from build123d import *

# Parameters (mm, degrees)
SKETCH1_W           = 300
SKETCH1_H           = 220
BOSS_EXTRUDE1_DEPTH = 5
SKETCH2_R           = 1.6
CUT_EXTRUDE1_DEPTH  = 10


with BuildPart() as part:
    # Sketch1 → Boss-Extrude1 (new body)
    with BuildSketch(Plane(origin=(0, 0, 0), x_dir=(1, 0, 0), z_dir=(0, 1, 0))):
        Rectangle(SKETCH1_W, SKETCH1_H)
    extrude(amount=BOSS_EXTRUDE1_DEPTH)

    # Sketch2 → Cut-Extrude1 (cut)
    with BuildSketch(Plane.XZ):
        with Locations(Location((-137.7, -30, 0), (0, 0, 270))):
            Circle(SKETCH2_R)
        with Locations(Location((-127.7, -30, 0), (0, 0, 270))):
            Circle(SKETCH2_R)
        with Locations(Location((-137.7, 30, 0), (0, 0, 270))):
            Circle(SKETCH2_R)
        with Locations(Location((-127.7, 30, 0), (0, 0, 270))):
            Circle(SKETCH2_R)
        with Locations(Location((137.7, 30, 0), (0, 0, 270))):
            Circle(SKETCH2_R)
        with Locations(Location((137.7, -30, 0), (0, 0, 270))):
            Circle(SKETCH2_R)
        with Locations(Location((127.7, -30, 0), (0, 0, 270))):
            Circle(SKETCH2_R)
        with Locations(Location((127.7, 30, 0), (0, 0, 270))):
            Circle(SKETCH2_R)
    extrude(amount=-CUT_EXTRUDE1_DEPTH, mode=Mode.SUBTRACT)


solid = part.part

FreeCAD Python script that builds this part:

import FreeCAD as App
import Part
import Sketcher

doc = App.newDocument("Part")
body = doc.addObject("PartDesign::Body", "Body")

sketch1 = body.newObject("Sketcher::SketchObject", "Sketch")
sketch1.AttachmentSupport = (doc.getObject("XZ_Plane"), [""])
sketch1.MapMode = "FlatFace"
sketch1.addGeometry([
    Part.LineSegment(App.Vector(-150, -110, 0), App.Vector(-150, 110, 0)),
    Part.LineSegment(App.Vector(-150, 110, 0), App.Vector(150, 110, 0)),
    Part.LineSegment(App.Vector(150, 110, 0), App.Vector(150, -110, 0)),
    Part.LineSegment(App.Vector(150, -110, 0), App.Vector(-150, -110, 0)),
], False)
sketch1.addConstraint([
    Sketcher.Constraint("Coincident", 0, 2, 1, 1),
    Sketcher.Constraint("Coincident", 1, 2, 2, 1),
    Sketcher.Constraint("Coincident", 2, 2, 3, 1),
    Sketcher.Constraint("Coincident", 3, 2, 0, 1),
    Sketcher.Constraint("Vertical", 0),
    Sketcher.Constraint("Horizontal", 1),
    Sketcher.Constraint("Vertical", 2),
    Sketcher.Constraint("Horizontal", 3),
    Sketcher.Constraint("Symmetric", 0, 2, 2, 2, -1, 1),
    Sketcher.Constraint("DistanceX", 1, 1, 1, 2, 300.0),
    Sketcher.Constraint("DistanceY", 0, 1, 0, 2, 220.0),
])
pad1 = body.newObject("PartDesign::Pad", "Pad")
pad1.Profile = sketch1
pad1.Length = 5
pad1.Reversed = True

sketch2 = body.newObject("Sketcher::SketchObject", "Sketch001")
sketch2.AttachmentSupport = (doc.getObject("XZ_Plane"), [""])
sketch2.MapMode = "FlatFace"
sketch2.addGeometry([
    Part.Circle(App.Vector(-137.7, -30, 0), App.Vector(0, 0, 1), 1.6),
    Part.Circle(App.Vector(-127.7, -30, 0), App.Vector(0, 0, 1), 1.6),
    Part.Circle(App.Vector(-137.7, 30, 0), App.Vector(0, 0, 1), 1.6),
    Part.Circle(App.Vector(-127.7, 30, 0), App.Vector(0, 0, 1), 1.6),
    Part.Circle(App.Vector(137.7, 30, 0), App.Vector(0, 0, 1), 1.6),
    Part.Circle(App.Vector(137.7, -30, 0), App.Vector(0, 0, 1), 1.6),
    Part.Circle(App.Vector(127.7, -30, 0), App.Vector(0, 0, 1), 1.6),
    Part.Circle(App.Vector(127.7, 30, 0), App.Vector(0, 0, 1), 1.6),
], False)
sketch2.addConstraint([
    Sketcher.Constraint("Equal", 0, 1),
    Sketcher.Constraint("Equal", 1, 2),
    Sketcher.Constraint("Equal", 2, 3),
    Sketcher.Constraint("Equal", 3, 4),
    Sketcher.Constraint("Equal", 4, 5),
    Sketcher.Constraint("Equal", 5, 6),
    Sketcher.Constraint("Equal", 6, 7),
    Sketcher.Constraint("Symmetric", 0, 3, 4, 3, -1, 1),
    Sketcher.Constraint("Symmetric", 2, 3, 5, 3, -1, 1),
    Sketcher.Constraint("Symmetric", 3, 3, 6, 3, -1, 1),
    Sketcher.Constraint("Symmetric", 1, 3, 7, 3, -1, 1),
    Sketcher.Constraint("Symmetric", 2, 3, 4, 3, -2),
    Sketcher.Constraint("Symmetric", 1, 3, 6, 3, -2),
    Sketcher.Constraint("Horizontal", 0, 3, 1, 3),
    Sketcher.Constraint("Diameter", 0, 3.2),
    Sketcher.Constraint("DistanceY", 0, 3, -1, 1, 30.0),
    Sketcher.Constraint("DistanceX", 0, 3, 1, 3, 10.0),
    Sketcher.Constraint("DistanceX", 0, 3, -1, 1, 137.7),
])
pocket1 = body.newObject("PartDesign::Pocket", "Pocket")
pocket1.Profile = sketch2
pocket1.Length = 10

doc.recompute()
